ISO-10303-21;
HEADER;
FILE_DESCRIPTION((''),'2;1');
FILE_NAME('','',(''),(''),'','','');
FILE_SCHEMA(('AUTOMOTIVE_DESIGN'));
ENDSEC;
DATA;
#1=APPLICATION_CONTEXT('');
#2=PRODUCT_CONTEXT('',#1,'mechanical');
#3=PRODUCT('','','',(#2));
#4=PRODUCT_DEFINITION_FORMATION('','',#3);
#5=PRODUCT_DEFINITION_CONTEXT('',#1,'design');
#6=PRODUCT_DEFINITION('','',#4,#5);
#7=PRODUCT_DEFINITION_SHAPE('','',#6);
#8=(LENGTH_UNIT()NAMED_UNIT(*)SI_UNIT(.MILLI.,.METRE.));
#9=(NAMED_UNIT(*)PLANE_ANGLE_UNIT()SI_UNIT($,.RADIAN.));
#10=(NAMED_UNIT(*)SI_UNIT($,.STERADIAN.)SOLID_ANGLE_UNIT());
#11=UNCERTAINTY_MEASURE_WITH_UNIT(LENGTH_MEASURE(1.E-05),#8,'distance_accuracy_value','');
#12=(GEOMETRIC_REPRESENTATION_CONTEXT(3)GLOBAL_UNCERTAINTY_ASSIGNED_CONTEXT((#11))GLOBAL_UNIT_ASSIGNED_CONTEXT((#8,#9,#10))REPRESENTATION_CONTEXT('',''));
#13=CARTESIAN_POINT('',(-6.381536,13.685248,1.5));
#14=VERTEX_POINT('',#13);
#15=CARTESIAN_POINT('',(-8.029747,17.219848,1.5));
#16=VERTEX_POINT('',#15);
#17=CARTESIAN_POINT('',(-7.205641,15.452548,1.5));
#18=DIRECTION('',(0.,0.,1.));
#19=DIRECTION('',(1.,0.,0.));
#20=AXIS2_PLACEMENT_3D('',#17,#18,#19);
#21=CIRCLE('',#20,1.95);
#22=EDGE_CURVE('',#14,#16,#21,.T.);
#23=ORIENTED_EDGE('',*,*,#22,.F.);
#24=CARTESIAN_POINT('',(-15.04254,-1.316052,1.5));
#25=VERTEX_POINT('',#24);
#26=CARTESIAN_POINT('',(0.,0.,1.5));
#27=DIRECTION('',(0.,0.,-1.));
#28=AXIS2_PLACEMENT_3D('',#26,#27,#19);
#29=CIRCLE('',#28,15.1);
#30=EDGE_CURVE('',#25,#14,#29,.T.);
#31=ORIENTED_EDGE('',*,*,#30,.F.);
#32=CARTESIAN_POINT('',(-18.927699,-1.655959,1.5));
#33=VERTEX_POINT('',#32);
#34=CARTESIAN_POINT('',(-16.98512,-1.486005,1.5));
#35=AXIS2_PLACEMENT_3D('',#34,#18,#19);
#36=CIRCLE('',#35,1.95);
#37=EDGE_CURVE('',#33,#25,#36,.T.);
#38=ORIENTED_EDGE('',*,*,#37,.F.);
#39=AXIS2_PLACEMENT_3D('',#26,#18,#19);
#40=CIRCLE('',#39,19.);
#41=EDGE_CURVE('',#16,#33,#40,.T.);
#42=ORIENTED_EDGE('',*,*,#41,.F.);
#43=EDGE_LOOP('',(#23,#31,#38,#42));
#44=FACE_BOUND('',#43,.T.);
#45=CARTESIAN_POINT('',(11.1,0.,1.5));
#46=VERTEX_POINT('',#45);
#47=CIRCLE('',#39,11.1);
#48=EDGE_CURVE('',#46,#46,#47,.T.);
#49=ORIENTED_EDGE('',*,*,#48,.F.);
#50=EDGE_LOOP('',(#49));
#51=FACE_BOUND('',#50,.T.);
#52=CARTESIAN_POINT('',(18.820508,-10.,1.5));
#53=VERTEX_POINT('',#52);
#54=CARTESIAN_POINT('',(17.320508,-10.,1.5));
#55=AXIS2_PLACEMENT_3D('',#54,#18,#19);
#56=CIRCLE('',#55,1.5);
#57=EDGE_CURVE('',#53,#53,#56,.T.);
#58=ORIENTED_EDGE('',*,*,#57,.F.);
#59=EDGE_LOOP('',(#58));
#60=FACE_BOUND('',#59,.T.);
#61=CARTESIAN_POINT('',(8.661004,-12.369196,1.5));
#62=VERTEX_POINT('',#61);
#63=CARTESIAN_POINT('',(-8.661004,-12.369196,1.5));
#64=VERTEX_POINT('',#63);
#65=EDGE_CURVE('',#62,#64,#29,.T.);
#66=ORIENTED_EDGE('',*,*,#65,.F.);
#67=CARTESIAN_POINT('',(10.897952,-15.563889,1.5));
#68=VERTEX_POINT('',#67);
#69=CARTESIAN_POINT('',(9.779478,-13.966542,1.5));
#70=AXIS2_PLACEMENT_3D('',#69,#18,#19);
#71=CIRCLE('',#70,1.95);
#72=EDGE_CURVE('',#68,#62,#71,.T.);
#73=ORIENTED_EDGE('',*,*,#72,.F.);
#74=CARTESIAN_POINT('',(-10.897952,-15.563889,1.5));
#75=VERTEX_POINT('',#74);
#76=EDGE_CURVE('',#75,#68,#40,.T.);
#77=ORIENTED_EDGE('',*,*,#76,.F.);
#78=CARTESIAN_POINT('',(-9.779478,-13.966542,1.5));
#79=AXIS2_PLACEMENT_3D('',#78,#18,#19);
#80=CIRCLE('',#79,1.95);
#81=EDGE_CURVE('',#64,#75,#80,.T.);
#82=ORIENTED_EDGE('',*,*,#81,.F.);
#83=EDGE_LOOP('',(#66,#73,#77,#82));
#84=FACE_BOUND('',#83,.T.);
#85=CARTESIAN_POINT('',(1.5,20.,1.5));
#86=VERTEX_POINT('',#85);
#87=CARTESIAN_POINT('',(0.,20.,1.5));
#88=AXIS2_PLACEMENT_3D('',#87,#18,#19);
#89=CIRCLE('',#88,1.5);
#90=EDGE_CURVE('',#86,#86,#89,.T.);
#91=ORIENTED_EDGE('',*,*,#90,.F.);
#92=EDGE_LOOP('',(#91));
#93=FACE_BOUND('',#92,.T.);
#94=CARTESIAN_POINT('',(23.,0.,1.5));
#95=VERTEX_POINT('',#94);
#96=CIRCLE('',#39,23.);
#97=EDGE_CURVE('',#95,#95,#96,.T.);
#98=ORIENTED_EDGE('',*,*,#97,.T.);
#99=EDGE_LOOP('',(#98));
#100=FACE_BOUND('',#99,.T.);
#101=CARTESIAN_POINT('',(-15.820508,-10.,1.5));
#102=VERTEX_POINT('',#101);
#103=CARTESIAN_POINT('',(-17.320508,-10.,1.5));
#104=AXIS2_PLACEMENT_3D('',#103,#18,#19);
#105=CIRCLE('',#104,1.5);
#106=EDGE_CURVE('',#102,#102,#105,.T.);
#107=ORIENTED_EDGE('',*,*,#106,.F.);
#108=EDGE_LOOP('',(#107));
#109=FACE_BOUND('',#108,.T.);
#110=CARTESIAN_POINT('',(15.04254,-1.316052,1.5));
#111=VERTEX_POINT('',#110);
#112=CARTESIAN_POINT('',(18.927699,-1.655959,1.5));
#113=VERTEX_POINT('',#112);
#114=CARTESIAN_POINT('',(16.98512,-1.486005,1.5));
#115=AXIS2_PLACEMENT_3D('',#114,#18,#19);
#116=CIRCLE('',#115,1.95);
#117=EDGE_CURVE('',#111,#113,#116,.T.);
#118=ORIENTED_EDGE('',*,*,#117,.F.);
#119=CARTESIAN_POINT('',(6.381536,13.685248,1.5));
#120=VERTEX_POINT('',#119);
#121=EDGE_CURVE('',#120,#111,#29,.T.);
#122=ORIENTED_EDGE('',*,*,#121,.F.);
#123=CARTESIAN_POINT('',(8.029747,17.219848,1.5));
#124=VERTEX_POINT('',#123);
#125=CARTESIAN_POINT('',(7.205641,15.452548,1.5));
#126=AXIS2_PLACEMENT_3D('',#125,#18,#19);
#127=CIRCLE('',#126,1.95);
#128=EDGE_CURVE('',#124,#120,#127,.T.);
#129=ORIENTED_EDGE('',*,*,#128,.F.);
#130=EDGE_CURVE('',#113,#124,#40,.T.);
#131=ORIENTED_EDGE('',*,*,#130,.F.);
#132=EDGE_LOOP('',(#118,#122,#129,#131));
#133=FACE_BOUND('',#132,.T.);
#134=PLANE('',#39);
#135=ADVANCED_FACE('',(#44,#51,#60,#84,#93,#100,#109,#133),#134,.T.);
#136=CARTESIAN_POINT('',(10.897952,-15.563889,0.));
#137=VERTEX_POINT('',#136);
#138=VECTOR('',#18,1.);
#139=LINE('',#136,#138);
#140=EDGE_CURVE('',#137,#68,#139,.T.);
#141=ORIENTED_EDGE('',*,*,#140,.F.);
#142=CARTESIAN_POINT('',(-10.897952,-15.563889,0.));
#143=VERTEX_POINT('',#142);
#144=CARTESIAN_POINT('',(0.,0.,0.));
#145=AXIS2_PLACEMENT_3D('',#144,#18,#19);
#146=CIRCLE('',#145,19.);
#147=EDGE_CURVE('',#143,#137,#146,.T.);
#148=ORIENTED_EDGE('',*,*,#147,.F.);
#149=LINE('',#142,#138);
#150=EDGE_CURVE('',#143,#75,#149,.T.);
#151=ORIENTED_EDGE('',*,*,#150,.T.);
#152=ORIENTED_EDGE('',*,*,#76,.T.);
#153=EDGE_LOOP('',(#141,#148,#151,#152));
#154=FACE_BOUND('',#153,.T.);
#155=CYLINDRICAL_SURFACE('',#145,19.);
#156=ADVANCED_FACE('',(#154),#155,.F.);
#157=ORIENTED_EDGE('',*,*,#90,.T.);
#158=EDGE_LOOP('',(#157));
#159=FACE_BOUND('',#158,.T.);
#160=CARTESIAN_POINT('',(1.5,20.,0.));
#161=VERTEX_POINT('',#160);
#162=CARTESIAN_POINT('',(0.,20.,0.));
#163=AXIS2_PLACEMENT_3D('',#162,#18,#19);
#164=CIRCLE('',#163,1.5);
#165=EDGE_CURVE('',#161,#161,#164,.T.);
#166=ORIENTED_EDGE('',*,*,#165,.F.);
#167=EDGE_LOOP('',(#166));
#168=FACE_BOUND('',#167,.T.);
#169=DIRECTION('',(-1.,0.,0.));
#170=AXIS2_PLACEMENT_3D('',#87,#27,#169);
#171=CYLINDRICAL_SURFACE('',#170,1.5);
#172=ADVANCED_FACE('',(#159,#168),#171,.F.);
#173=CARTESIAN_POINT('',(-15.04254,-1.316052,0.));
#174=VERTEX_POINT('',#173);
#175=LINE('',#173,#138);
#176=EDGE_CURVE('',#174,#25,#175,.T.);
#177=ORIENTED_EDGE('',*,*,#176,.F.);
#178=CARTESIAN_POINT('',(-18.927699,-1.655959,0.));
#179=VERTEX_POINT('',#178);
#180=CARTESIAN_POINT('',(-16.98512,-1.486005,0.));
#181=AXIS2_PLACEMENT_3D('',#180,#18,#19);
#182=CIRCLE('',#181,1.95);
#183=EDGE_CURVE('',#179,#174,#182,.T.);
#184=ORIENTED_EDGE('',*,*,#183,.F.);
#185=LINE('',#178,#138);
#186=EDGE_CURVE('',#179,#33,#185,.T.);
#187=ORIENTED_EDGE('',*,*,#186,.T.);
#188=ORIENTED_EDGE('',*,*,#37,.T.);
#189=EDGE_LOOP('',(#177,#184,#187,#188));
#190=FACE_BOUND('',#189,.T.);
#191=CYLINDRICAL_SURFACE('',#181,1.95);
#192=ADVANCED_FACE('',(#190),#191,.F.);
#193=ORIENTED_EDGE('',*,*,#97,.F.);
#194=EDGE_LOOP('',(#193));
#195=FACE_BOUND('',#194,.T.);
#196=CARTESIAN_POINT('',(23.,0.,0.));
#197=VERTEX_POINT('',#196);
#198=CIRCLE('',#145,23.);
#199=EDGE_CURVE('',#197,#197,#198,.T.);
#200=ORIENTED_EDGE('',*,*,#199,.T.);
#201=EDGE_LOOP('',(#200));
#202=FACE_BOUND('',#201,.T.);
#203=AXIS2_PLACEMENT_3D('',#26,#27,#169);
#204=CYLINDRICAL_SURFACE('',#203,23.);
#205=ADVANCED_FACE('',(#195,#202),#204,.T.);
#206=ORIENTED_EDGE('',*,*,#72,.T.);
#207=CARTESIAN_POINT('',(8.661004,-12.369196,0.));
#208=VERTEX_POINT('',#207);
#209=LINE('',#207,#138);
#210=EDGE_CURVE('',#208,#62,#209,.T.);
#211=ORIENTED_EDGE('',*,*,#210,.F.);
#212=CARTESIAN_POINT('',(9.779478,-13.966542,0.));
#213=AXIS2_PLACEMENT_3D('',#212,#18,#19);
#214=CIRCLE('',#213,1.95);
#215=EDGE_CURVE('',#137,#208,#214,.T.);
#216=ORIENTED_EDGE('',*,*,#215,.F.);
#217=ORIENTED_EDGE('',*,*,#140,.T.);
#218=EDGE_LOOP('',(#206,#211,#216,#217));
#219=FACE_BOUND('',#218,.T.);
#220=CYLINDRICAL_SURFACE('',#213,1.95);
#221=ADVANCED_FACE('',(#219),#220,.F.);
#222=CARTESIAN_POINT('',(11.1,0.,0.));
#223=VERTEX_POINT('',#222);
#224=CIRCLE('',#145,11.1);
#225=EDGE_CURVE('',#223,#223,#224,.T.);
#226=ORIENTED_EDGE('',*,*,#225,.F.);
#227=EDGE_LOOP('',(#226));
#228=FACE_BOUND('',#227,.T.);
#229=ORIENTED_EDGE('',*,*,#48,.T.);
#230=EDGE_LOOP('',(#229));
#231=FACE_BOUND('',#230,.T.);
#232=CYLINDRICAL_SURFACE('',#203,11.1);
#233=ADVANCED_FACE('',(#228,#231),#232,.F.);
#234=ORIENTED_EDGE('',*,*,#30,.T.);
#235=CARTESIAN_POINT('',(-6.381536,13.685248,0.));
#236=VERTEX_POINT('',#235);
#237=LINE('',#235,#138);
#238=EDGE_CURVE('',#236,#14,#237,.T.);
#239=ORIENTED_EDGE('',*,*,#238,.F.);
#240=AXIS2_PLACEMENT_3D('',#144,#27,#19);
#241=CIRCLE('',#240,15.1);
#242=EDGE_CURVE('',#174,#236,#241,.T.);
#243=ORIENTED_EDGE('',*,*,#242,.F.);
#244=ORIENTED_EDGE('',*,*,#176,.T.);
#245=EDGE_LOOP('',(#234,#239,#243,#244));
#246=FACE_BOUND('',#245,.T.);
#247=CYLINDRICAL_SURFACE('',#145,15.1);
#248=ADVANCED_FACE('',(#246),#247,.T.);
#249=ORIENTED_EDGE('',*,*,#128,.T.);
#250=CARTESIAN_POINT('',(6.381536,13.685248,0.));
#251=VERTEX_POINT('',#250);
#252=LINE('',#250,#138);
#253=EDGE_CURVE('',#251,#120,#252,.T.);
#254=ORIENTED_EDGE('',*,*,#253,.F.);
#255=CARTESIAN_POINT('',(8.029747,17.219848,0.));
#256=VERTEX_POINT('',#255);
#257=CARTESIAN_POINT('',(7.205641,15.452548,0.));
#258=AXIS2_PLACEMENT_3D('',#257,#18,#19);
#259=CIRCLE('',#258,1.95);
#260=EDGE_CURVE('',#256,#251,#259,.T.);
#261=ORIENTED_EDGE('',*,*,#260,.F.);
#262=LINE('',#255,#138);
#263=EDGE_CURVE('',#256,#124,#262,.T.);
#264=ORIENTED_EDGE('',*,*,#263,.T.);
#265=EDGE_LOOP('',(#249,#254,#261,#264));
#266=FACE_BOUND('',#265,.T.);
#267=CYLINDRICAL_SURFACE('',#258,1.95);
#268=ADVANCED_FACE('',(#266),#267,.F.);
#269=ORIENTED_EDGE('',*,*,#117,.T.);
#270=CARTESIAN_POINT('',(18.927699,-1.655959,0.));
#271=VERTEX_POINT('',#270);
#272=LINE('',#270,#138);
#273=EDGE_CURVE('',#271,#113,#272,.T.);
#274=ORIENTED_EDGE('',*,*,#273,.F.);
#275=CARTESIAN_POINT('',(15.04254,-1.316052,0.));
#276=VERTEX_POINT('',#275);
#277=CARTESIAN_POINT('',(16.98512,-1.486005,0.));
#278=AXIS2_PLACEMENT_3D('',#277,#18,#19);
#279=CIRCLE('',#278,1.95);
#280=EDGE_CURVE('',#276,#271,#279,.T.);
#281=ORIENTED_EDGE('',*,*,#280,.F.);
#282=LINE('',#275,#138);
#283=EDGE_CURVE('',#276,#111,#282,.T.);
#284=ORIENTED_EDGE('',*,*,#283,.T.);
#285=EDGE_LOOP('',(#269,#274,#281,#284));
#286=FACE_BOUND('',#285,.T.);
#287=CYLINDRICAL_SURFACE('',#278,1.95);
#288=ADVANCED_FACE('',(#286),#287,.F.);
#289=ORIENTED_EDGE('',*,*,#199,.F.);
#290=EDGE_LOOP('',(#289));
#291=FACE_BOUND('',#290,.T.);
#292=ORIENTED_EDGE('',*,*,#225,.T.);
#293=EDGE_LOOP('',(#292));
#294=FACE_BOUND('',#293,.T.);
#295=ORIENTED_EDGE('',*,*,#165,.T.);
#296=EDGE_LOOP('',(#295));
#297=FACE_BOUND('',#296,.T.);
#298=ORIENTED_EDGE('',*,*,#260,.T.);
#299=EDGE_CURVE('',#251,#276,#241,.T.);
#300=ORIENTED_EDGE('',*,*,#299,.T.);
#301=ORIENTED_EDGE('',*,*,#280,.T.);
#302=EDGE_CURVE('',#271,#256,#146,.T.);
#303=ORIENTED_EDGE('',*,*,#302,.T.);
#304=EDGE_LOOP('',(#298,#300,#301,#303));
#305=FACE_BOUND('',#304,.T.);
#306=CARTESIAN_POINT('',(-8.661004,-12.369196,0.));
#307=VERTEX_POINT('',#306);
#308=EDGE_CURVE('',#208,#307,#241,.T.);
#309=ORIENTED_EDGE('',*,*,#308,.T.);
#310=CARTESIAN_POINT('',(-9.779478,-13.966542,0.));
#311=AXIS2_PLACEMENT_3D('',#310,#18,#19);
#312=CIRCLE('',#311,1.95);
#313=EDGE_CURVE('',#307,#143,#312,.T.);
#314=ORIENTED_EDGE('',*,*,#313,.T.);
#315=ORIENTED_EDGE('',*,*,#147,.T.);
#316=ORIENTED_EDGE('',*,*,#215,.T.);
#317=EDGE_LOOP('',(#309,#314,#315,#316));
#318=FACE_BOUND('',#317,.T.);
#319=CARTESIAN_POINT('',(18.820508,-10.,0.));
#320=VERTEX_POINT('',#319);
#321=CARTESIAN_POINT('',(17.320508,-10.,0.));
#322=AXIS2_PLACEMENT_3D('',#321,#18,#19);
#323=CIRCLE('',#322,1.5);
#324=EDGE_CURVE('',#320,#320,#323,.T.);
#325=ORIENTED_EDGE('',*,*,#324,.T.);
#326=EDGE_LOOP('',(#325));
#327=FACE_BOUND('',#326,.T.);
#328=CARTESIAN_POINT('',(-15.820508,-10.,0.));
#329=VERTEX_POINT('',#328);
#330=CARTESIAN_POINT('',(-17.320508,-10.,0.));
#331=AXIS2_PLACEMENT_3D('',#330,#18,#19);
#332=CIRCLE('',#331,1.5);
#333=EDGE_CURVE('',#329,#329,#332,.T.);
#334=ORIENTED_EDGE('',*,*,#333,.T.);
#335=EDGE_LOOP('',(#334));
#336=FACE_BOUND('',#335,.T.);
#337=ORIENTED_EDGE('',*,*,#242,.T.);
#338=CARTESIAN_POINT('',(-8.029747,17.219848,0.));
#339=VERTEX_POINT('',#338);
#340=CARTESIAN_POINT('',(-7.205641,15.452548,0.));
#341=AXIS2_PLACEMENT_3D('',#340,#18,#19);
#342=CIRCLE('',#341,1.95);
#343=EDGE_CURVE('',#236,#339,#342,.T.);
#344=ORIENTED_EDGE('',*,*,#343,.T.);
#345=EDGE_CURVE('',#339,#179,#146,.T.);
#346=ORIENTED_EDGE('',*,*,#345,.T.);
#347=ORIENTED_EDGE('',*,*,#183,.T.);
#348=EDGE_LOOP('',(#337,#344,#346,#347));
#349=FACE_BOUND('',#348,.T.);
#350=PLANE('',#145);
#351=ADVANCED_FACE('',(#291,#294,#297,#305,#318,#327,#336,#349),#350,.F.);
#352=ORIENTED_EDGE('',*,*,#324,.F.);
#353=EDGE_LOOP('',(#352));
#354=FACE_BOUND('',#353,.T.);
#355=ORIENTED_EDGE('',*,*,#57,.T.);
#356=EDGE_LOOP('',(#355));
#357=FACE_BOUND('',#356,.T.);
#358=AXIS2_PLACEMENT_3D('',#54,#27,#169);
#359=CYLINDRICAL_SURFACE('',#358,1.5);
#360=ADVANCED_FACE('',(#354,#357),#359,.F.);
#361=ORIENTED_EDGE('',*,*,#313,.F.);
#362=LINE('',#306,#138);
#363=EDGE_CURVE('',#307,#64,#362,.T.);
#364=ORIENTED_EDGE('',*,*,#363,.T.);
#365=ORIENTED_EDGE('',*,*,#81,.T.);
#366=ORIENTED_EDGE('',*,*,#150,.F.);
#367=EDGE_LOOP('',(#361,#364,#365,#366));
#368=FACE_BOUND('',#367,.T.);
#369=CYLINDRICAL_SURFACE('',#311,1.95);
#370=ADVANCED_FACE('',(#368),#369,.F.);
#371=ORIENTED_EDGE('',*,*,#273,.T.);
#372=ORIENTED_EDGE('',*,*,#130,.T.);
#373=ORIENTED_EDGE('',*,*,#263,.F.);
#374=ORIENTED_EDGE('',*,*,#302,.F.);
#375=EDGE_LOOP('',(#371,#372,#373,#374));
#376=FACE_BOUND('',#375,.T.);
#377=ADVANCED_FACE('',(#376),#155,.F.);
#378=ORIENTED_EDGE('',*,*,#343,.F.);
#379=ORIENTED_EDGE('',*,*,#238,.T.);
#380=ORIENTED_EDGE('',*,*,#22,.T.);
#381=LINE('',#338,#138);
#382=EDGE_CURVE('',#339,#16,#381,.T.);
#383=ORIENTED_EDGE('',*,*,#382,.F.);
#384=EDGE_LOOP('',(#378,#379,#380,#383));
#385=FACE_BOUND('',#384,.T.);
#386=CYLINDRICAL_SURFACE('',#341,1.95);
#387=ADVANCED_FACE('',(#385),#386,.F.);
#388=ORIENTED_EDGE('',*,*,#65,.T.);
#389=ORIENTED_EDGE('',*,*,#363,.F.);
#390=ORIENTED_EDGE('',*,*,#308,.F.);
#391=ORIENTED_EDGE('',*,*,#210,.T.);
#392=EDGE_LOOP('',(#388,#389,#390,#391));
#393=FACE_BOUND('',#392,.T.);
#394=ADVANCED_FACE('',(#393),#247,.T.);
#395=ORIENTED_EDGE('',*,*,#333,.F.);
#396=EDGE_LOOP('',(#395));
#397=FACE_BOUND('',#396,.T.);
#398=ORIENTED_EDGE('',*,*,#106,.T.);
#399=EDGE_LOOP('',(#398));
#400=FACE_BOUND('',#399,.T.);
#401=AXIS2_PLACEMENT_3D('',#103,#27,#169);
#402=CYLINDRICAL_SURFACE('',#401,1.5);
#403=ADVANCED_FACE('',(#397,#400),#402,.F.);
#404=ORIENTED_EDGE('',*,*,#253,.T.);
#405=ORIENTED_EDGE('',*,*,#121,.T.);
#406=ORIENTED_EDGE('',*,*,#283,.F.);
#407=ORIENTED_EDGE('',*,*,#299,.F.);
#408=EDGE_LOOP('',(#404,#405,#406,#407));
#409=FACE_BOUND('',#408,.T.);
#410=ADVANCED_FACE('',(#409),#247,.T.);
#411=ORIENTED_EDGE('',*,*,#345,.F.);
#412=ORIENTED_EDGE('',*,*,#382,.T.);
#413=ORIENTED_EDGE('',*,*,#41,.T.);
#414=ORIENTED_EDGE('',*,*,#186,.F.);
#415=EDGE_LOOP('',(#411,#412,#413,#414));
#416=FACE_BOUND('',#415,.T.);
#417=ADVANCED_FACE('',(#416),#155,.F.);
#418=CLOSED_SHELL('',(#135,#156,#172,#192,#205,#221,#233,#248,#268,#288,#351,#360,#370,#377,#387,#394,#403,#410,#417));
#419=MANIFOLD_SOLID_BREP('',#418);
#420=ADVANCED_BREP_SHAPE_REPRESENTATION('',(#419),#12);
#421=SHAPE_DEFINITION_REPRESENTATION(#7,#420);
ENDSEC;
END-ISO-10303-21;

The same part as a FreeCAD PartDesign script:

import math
import FreeCAD as App
import Part
import Sketcher
Q = App.Units.Quantity

doc = App.newDocument("Part")
body = doc.addObject("PartDesign::Body", "Body")

# Sketch on XY plane
sketch1 = body.newObject("Sketcher::SketchObject", "Sketch")
sketch1.AttachmentSupport = (doc.getObject("XY_Plane"), [""])
sketch1.MapMode = "FlatFace"
sketch1.addGeometry(Part.Circle(App.Vector(0, 0, 0), App.Vector(0, 0, 1), 23), False)
sketch1.addGeometry(Part.Circle(App.Vector(-17.3, -10, 0), App.Vector(0, 0, 1), 1.5), False)
sketch1.addGeometry(Part.Circle(App.Vector(17.3, -10, 0), App.Vector(0, 0, 1), 1.5), False)
sketch1.addGeometry(Part.Circle(App.Vector(0, 0, 0), App.Vector(0, 0, 1), 11.1), False)
sketch1.addGeometry(Part.Circle(App.Vector(0, 20, 0), App.Vector(0, 0, 1), 1.5), False)
sketch1.addConstraint(Sketcher.Constraint("Coincident", 0, 3, -1, 1))
sketch1.addConstraint(Sketcher.Constraint("Coincident", 3, 3, -1, 1))
sketch1.addConstraint(Sketcher.Constraint("Equal", 1, 2))
sketch1.addConstraint(Sketcher.Constraint("Equal", 2, 4))
sketch1.addConstraint(Sketcher.Constraint("Symmetric", 1, 3, 2, 3, -2))
sketch1.addConstraint(Sketcher.Constraint("PointOnObject", 4, 3, -2))
sketch1.addConstraint(Sketcher.Constraint("Diameter", 0, Q("46 mm")))
sketch1.addConstraint(Sketcher.Constraint("Diameter", 1, Q("3 mm")))
sketch1.addConstraint(Sketcher.Constraint("Diameter", 3, Q("22.2 mm")))
sketch1.addConstraint(Sketcher.Constraint("DistanceY", 1, 3, -1, 1, Q("10 mm")))
sketch1.addConstraint(Sketcher.Constraint("DistanceY", -1, 1, 4, 3, Q("20 mm")))
sketch1.addConstraint(Sketcher.Constraint("DistanceX", 1, 3, -1, 1, Q("17.320508 mm")))
pad1 = body.newObject("PartDesign::Pad", "Pad")
pad1.Profile = sketch1
pad1.Length = 1.5

# Sketch on XY plane
sketch2 = body.newObject("Sketcher::SketchObject", "Sketch001")
sketch2.AttachmentSupport = (doc.getObject("XY_Plane"), [""])
sketch2.MapMode = "FlatFace"
sketch2.AttachmentOffset = App.Placement(App.Vector(0, 0, 1.5), App.Rotation())
sketch2.addGeometry(Part.ArcOfCircle(Part.Circle(App.Vector(0, 0, 0), App.Vector(0, 0, 1), 19), math.radians(115), math.radians(185)), False)
sketch2.addGeometry(Part.ArcOfCircle(Part.Circle(App.Vector(-17, -1.5, 0), App.Vector(0, 0, 1), 1.9), math.radians(-175), math.radians(5)), False)
sketch2.addGeometry(Part.ArcOfCircle(Part.Circle(App.Vector(0, 0, 0), App.Vector(0, 0, 1), 15.1), math.radians(115), math.radians(185)), False)
sketch2.addGeometry(Part.ArcOfCircle(Part.Circle(App.Vector(-7.2, 15.5, 0), App.Vector(0, 0, 1), 1.9), math.radians(-65), math.radians(115)), False)
sketch2.addGeometry(Part.ArcOfCircle(Part.Circle(App.Vector(0, 0, 0), App.Vector(0, 0, 1), 19), math.radians(-5), math.radians(65)), False)
sketch2.addGeometry(Part.ArcOfCircle(Part.Circle(App.Vector(7.2, 15.5, 0), App.Vector(0, 0, 1), 1.9), math.radians(65), math.radians(245)), False)
sketch2.addGeometry(Part.ArcOfCircle(Part.Circle(App.Vector(0, 0, 0), App.Vector(0, 0, 1), 15.1), math.radians(-5), math.radians(65)), False)
sketch2.addGeometry(Part.ArcOfCircle(Part.Circle(App.Vector(17, -1.5, 0), App.Vector(0, 0, 1), 1.9), math.radians(175), math.radians(355)), False)
sketch2.addGeometry(Part.ArcOfCircle(Part.Circle(App.Vector(0, 0, 0), App.Vector(0, 0, 1), 19), math.radians(-125), math.radians(-55)), False)
sketch2.addGeometry(Part.ArcOfCircle(Part.Circle(App.Vector(9.8, -14, 0), App.Vector(0, 0, 1), 1.9), math.radians(-55), math.radians(125)), False)
sketch2.addGeometry(Part.ArcOfCircle(Part.Circle(App.Vector(0, 0, 0), App.Vector(0, 0, 1), 15.1), math.radians(-125), math.radians(-55)), False)
sketch2.addGeometry(Part.ArcOfCircle(Part.Circle(App.Vector(-9.8, -14, 0), App.Vector(0, 0, 1), 1.9), math.radians(55), math.radians(235)), False)
sketch2.addConstraint(Sketcher.Constraint("Tangent", 0, 2, 1, 1))
sketch2.addConstraint(Sketcher.Constraint("Tangent", 1, 2, 2, 2))
sketch2.addConstraint(Sketcher.Constraint("Tangent", 2, 1, 3, 1))
sketch2.addConstraint(Sketcher.Constraint("Tangent", 3, 2, 0, 1))
sketch2.addConstraint(Sketcher.Constraint("Tangent", 4, 2, 5, 1))
sketch2.addConstraint(Sketcher.Constraint("Tangent", 5, 2, 6, 2))
sketch2.addConstraint(Sketcher.Constraint("Tangent", 6, 1, 7, 1))
sketch2.addConstraint(Sketcher.Constraint("Tangent", 7, 2, 4, 1))
sketch2.addConstraint(Sketcher.Constraint("Tangent", 8, 2, 9, 1))
sketch2.addConstraint(Sketcher.Constraint("Tangent", 9, 2, 10, 2))
sketch2.addConstraint(Sketcher.Constraint("Tangent", 10, 1, 11, 1))
sketch2.addConstraint(Sketcher.Constraint("Tangent", 11, 2, 8, 1))
sketch2.addConstraint(Sketcher.Constraint("Coincident", 0, 3, -1, 1))
sketch2.addConstraint(Sketcher.Constraint("Coincident", 2, 3, -1, 1))
sketch2.addConstraint(Sketcher.Constraint("Coincident", 4, 3, -1, 1))
sketch2.addConstraint(Sketcher.Constraint("Coincident", 6, 3, -1, 1))
sketch2.addConstraint(Sketcher.Constraint("Coincident", 8, 3, -1, 1))
sketch2.addConstraint(Sketcher.Constraint("Coincident", 10, 3, -1, 1))
sketch2.addConstraint(Sketcher.Constraint("Equal", 0, 4))
sketch2.addConstraint(Sketcher.Constraint("Equal", 3, 5))
sketch2.addConstraint(Sketcher.Constraint("Equal", 4, 8))
sketch2.addConstraint(Sketcher.Constraint("Equal", 7, 9))
sketch2.addConstraint(Sketcher.Constraint("Horizontal", 3, 3, 5, 3))
sketch2.addConstraint(Sketcher.Constraint("Horizontal", 1, 3, 7, 3))
sketch2.addConstraint(Sketcher.Constraint("Horizontal", 9, 3, 11, 3))
sketch2.addConstraint(Sketcher.Constraint("Radius", 0, Q("19 mm")))
sketch2.addConstraint(Sketcher.Constraint("Radius", 2, Q("15.1 mm")))
sketch2.addConstraint(Sketcher.Constraint("DistanceX", 0, 2, -1, 1, Q("18.927699 mm")))
sketch2.addConstraint(Sketcher.Constraint("DistanceY", 2, 1, 3, 3, Q("1.7673 mm")))
sketch2.addConstraint(Sketcher.Constraint("DistanceX", -1, 1, 9, 3, Q("9.779478 mm")))
pocket1 = body.newObject("PartDesign::Pocket", "Pocket")
pocket1.Profile = sketch2
pocket1.Type = "ThroughAll"

doc.recompute()
